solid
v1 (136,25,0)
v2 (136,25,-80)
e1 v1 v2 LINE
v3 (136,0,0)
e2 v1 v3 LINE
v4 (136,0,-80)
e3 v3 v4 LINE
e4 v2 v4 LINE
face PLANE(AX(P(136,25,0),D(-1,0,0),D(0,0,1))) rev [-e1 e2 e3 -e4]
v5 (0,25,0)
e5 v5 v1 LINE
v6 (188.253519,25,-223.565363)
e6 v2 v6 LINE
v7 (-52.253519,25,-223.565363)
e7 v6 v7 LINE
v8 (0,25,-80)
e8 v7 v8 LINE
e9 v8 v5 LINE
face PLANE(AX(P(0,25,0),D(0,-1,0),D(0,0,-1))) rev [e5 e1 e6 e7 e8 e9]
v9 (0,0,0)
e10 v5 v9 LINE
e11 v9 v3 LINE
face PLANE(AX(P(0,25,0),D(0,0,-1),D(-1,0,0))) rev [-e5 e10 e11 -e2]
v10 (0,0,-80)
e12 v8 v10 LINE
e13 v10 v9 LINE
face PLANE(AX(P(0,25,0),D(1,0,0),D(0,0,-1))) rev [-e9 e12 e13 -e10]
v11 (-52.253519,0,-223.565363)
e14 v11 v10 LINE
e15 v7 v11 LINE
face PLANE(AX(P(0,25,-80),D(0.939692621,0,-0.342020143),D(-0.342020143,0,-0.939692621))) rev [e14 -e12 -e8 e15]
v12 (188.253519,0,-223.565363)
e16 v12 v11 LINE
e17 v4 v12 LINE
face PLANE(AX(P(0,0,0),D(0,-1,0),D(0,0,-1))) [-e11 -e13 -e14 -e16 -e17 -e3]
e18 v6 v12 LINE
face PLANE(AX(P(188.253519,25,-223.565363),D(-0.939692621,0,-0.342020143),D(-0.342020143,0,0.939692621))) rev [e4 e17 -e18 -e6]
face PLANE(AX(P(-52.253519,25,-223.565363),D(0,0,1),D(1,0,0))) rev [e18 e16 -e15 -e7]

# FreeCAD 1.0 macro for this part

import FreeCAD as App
import Part
import Sketcher
Q = App.Units.Quantity


def add_polygon(sketch, points):
    """Adds a closed chain of lines whose ends are joined by coincident constraints."""
    first, n = sketch.GeometryCount, len(points)
    for a, b in zip(points, points[1:] + points[:1]):
        sketch.addGeometry(Part.LineSegment(App.Vector(*a, 0), App.Vector(*b, 0)), False)
    for i in range(n):
        sketch.addConstraint(Sketcher.Constraint("Coincident", first + i, 2, first + (i + 1) % n, 1))

doc = App.newDocument("Part")
body = doc.addObject("PartDesign::Body", "Body")

sketch1 = body.newObject("Sketcher::SketchObject", "Sketch")
sketch1.AttachmentSupport = (doc.getObject("XZ_Plane"), [""])
sketch1.MapMode = "FlatFace"
add_polygon(sketch1, [(0, 0), (136, 0), (136, -80), (188.253519, -223.565363), (-52.253519, -223.565363), (0, -80)])
sketch1.addConstraint([
    Sketcher.Constraint("Horizontal", 0),
    Sketcher.Constraint("Vertical", 1),
    Sketcher.Constraint("Horizontal", 3),
    Sketcher.Constraint("Vertical", 5),
    Sketcher.Constraint("Coincident", 5, 2, -1, 1),
    Sketcher.Constraint("Horizontal", 1, 2, 4, 2),
    Sketcher.Constraint("Equal", 2, 4),
    Sketcher.Constraint("DistanceX", 0, 1, 0, 2, Q("136 mm")),
    Sketcher.Constraint("DistanceY", 1, 2, 1, 1, Q("80 mm")),
    Sketcher.Constraint("Angle", 2, Q("-70 deg")),
    Sketcher.Constraint("Distance", 2, Q("152.779069 mm")),
])
pad1 = body.newObject("PartDesign::Pad", "Pad")
pad1.Profile = sketch1
pad1.Length = 25
pad1.Reversed = True

doc.recompute()
